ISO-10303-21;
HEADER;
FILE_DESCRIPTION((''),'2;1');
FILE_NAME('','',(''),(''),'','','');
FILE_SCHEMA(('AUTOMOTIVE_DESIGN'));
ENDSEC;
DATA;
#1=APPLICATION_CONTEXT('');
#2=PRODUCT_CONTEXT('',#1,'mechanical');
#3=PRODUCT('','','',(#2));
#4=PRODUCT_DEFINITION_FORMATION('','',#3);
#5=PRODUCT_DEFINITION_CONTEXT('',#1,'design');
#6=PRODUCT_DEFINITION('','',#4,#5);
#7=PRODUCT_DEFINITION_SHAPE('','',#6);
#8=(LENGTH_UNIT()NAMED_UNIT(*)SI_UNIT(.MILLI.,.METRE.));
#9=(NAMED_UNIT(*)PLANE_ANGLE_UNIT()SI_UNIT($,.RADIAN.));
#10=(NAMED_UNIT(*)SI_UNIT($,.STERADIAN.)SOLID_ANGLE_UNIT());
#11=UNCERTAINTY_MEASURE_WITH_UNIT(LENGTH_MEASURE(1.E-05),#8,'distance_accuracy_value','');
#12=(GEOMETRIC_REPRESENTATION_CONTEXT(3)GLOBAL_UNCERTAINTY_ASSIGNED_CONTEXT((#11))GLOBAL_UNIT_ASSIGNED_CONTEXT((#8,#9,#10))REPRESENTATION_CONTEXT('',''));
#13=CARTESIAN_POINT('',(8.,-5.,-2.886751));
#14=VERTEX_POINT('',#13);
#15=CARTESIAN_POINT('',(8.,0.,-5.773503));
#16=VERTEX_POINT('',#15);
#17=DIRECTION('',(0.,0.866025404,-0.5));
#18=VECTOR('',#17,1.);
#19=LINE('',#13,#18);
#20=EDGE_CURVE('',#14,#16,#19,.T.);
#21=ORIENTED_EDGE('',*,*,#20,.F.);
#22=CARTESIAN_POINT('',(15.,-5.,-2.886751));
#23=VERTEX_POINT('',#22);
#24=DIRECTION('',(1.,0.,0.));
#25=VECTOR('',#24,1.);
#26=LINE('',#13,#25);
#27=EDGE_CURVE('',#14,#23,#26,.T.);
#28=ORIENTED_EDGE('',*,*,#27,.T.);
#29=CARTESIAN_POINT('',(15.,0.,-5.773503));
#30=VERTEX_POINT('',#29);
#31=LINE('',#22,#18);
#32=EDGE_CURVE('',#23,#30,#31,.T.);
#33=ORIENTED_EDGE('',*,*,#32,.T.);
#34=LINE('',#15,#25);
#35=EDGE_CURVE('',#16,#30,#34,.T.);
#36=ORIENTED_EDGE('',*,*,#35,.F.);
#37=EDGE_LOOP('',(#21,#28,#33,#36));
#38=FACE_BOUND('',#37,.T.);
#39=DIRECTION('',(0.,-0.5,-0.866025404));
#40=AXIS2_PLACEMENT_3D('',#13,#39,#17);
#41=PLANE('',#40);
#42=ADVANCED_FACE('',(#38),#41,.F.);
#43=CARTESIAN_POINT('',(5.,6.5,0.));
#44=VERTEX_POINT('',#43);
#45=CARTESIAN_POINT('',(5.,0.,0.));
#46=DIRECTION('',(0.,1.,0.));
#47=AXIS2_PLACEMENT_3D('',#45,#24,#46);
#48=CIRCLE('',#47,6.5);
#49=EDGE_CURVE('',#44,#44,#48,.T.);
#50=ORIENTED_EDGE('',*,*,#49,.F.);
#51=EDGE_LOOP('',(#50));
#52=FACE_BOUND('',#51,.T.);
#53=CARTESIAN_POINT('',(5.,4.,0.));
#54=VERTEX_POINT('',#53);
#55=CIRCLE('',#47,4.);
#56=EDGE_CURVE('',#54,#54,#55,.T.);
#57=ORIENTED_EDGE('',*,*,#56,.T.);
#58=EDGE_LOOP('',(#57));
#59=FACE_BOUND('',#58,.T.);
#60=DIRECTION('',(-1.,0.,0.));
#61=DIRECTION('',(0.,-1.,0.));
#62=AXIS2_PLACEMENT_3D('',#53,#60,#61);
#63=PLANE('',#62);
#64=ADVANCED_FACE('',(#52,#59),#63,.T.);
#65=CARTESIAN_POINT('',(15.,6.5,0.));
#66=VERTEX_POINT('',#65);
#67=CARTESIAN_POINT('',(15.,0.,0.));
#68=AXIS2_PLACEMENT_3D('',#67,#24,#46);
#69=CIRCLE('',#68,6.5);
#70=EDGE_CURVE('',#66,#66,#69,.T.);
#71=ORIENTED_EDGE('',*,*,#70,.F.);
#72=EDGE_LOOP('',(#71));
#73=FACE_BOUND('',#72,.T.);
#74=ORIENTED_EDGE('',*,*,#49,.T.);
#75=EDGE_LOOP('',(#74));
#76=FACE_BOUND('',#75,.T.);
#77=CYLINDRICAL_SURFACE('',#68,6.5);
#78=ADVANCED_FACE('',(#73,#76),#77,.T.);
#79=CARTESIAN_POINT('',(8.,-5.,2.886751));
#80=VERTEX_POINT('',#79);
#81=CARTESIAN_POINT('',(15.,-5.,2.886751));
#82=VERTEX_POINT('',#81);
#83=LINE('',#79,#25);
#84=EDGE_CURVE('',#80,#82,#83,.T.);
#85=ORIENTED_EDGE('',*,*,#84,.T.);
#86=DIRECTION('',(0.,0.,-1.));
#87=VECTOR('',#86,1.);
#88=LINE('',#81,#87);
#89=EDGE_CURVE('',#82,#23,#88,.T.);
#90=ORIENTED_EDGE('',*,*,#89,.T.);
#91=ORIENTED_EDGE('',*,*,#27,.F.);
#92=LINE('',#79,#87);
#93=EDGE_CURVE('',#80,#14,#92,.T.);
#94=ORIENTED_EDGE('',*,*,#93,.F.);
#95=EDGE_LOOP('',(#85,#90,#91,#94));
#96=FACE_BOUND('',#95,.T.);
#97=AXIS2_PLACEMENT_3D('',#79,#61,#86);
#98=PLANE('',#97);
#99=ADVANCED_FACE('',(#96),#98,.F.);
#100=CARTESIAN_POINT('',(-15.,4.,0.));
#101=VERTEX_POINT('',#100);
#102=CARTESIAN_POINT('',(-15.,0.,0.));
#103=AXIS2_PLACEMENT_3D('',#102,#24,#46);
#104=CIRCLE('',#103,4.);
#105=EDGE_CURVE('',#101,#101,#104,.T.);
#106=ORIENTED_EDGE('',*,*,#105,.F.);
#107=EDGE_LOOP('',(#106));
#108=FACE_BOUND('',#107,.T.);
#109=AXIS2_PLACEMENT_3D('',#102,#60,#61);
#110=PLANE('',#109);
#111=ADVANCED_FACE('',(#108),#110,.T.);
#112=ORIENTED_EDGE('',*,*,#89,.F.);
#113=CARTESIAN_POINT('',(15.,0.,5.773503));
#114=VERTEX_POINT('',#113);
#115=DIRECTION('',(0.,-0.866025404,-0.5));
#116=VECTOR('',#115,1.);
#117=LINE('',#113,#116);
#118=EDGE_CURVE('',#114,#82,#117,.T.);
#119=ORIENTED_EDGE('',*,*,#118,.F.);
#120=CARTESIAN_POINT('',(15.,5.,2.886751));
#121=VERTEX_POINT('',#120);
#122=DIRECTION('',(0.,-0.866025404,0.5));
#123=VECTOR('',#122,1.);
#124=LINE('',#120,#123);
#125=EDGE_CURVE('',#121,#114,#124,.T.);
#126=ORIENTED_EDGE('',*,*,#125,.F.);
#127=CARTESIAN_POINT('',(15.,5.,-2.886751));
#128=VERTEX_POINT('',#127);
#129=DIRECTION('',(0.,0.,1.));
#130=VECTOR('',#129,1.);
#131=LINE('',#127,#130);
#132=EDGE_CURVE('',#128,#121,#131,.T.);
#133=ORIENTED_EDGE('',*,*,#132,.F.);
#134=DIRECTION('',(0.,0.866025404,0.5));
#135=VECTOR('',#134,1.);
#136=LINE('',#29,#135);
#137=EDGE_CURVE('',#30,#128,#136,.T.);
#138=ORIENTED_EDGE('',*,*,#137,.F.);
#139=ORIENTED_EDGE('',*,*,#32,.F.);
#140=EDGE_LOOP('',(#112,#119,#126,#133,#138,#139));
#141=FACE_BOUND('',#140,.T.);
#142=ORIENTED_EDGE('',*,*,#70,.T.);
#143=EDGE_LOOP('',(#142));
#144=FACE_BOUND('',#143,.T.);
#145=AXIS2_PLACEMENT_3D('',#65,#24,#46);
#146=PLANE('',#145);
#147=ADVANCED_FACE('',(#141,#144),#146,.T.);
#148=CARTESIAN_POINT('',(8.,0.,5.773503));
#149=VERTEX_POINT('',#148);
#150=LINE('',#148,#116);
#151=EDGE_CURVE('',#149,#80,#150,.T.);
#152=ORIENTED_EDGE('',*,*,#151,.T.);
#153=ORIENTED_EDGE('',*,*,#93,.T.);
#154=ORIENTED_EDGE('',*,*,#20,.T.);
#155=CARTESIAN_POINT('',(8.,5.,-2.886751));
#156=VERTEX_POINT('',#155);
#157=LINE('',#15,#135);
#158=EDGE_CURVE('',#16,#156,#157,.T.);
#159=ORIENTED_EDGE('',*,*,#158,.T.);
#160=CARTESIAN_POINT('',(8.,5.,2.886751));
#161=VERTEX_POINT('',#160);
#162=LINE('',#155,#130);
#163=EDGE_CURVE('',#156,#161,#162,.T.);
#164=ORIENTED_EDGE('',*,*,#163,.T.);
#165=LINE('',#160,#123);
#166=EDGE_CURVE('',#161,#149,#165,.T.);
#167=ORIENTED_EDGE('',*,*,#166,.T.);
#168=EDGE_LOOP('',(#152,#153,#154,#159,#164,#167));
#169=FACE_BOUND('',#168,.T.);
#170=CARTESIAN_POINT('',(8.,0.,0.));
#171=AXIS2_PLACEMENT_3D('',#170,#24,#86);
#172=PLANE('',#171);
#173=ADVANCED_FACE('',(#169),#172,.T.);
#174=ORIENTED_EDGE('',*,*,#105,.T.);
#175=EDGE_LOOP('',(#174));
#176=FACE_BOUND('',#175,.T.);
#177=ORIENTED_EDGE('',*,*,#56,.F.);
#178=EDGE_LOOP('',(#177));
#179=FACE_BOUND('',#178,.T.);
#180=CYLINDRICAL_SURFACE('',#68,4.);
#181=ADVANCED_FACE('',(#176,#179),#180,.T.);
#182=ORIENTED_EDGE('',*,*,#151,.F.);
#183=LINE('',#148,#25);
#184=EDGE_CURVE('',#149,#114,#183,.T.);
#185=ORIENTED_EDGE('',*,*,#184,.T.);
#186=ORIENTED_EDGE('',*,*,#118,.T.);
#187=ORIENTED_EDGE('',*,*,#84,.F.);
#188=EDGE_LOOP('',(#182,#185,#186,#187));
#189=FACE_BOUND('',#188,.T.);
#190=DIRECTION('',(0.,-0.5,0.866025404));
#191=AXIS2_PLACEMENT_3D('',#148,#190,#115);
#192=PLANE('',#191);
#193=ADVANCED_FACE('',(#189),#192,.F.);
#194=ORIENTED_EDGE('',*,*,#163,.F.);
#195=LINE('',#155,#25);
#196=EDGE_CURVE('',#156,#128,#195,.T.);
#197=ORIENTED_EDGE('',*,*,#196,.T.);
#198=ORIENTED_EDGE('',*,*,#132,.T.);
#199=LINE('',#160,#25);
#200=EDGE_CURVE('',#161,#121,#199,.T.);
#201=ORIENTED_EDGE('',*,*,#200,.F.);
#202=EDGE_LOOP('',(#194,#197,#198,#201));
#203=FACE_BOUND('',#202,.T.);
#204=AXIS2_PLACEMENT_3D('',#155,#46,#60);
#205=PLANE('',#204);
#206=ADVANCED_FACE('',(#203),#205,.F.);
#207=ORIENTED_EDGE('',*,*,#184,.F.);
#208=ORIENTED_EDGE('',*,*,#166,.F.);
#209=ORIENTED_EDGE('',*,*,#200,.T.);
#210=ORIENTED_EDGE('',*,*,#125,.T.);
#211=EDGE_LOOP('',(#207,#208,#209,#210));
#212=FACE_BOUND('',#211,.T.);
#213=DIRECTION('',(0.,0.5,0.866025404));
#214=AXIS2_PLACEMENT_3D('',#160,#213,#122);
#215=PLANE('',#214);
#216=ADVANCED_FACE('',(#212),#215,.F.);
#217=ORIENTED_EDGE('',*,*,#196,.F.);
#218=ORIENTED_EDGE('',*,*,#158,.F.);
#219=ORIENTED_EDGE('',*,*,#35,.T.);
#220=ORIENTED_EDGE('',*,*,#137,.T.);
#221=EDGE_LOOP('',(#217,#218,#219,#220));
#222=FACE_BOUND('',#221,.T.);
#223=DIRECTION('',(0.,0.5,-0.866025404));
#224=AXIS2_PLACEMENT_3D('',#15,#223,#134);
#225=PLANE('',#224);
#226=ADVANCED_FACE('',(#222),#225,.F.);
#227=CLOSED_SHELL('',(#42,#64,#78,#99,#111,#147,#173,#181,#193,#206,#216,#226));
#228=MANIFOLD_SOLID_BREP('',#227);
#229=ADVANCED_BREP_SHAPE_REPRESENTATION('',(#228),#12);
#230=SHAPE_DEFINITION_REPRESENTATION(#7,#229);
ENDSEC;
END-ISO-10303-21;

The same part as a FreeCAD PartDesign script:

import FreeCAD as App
import Part
import Sketcher
from FreeCAD import Vector
Q = App.Units.Quantity


def add_polygon(sketch, points):
    """Adds a closed chain of lines whose ends are joined by coincident constraints."""
    first, n = sketch.GeometryCount, len(points)
    for a, b in zip(points, points[1:] + points[:1]):
        sketch.addGeometry(Part.LineSegment(App.Vector(*a, 0), App.Vector(*b, 0)), False)
    for i in range(n):
        sketch.addConstraint(Sketcher.Constraint("Coincident", first + i, 2, first + (i + 1) % n, 1))

doc = App.newDocument("Part")
body = doc.addObject("PartDesign::Body", "Body")

sketch1 = body.newObject("Sketcher::SketchObject", "Sketch")
sketch1.AttachmentSupport = (doc.getObject("XY_Plane"), [""])
sketch1.MapMode = "FlatFace"
add_polygon(sketch1, [(-15, 0), (15, 0), (15, 6.5), (5, 6.5), (5, 4), (-15, 4)])
sketch1.addConstraint([
    Sketcher.Constraint("Horizontal", 0),
    Sketcher.Constraint("Vertical", 1),
    Sketcher.Constraint("Horizontal", 2),
    Sketcher.Constraint("Vertical", 3),
    Sketcher.Constraint("Horizontal", 4),
    Sketcher.Constraint("Vertical", 5),
    Sketcher.Constraint("Symmetric", 0, 2, 5, 2, -1, 1),
    Sketcher.Constraint("DistanceX", 0, 1, 0, 2, 30.0),
    Sketcher.Constraint("DistanceX", 2, 2, 2, 1, 10.0),
    Sketcher.Constraint("DistanceY", 5, 2, 5, 1, 4.0),
    Sketcher.Constraint("DistanceY", 1, 1, 1, 2, 6.5),
])
revolution = body.newObject("PartDesign::Revolution", "Revolution")
revolution.Profile = sketch1
revolution.ReferenceAxis = (sketch1, ["H_Axis"])
revolution.Angle = 360

sketch2 = body.newObject("Sketcher::SketchObject", "Sketch001")
sketch2.AttachmentSupport = (doc.getObject("YZ_Plane"), [""])
sketch2.MapMode = "FlatFace"
sketch2.AttachmentOffset = App.Placement(Vector(0, 0, 15), App.Rotation())
add_polygon(sketch2, [(0, -6), (5, -3), (5, 3), (0, 6), (-5, 3), (-5, -3)])
sketch2.addConstraint([
    Sketcher.Constraint("Vertical", 1),
    Sketcher.Constraint("Vertical", 4),
    Sketcher.Constraint("Symmetric", 0, 2, 3, 2, -1, 1),
    Sketcher.Constraint("Symmetric", 2, 2, 5, 2, -1, 1),
    Sketcher.Constraint("PointOnObject", 2, 2, -2),
    Sketcher.Constraint("Parallel", 2, 5),
    Sketcher.Constraint("Horizontal", 1, 2, 3, 2),
    Sketcher.Constraint("Angle", 0, Q("30 deg")),
    Sketcher.Constraint("DistanceX", -1, 1, 0, 2, 5.0),
    Sketcher.Constraint("DistanceY", 1, 1, 1, 2, 5.773503),
])
pocket1 = body.newObject("PartDesign::Pocket", "Pocket")
pocket1.Profile = sketch2
pocket1.Length = 7

doc.recompute()
